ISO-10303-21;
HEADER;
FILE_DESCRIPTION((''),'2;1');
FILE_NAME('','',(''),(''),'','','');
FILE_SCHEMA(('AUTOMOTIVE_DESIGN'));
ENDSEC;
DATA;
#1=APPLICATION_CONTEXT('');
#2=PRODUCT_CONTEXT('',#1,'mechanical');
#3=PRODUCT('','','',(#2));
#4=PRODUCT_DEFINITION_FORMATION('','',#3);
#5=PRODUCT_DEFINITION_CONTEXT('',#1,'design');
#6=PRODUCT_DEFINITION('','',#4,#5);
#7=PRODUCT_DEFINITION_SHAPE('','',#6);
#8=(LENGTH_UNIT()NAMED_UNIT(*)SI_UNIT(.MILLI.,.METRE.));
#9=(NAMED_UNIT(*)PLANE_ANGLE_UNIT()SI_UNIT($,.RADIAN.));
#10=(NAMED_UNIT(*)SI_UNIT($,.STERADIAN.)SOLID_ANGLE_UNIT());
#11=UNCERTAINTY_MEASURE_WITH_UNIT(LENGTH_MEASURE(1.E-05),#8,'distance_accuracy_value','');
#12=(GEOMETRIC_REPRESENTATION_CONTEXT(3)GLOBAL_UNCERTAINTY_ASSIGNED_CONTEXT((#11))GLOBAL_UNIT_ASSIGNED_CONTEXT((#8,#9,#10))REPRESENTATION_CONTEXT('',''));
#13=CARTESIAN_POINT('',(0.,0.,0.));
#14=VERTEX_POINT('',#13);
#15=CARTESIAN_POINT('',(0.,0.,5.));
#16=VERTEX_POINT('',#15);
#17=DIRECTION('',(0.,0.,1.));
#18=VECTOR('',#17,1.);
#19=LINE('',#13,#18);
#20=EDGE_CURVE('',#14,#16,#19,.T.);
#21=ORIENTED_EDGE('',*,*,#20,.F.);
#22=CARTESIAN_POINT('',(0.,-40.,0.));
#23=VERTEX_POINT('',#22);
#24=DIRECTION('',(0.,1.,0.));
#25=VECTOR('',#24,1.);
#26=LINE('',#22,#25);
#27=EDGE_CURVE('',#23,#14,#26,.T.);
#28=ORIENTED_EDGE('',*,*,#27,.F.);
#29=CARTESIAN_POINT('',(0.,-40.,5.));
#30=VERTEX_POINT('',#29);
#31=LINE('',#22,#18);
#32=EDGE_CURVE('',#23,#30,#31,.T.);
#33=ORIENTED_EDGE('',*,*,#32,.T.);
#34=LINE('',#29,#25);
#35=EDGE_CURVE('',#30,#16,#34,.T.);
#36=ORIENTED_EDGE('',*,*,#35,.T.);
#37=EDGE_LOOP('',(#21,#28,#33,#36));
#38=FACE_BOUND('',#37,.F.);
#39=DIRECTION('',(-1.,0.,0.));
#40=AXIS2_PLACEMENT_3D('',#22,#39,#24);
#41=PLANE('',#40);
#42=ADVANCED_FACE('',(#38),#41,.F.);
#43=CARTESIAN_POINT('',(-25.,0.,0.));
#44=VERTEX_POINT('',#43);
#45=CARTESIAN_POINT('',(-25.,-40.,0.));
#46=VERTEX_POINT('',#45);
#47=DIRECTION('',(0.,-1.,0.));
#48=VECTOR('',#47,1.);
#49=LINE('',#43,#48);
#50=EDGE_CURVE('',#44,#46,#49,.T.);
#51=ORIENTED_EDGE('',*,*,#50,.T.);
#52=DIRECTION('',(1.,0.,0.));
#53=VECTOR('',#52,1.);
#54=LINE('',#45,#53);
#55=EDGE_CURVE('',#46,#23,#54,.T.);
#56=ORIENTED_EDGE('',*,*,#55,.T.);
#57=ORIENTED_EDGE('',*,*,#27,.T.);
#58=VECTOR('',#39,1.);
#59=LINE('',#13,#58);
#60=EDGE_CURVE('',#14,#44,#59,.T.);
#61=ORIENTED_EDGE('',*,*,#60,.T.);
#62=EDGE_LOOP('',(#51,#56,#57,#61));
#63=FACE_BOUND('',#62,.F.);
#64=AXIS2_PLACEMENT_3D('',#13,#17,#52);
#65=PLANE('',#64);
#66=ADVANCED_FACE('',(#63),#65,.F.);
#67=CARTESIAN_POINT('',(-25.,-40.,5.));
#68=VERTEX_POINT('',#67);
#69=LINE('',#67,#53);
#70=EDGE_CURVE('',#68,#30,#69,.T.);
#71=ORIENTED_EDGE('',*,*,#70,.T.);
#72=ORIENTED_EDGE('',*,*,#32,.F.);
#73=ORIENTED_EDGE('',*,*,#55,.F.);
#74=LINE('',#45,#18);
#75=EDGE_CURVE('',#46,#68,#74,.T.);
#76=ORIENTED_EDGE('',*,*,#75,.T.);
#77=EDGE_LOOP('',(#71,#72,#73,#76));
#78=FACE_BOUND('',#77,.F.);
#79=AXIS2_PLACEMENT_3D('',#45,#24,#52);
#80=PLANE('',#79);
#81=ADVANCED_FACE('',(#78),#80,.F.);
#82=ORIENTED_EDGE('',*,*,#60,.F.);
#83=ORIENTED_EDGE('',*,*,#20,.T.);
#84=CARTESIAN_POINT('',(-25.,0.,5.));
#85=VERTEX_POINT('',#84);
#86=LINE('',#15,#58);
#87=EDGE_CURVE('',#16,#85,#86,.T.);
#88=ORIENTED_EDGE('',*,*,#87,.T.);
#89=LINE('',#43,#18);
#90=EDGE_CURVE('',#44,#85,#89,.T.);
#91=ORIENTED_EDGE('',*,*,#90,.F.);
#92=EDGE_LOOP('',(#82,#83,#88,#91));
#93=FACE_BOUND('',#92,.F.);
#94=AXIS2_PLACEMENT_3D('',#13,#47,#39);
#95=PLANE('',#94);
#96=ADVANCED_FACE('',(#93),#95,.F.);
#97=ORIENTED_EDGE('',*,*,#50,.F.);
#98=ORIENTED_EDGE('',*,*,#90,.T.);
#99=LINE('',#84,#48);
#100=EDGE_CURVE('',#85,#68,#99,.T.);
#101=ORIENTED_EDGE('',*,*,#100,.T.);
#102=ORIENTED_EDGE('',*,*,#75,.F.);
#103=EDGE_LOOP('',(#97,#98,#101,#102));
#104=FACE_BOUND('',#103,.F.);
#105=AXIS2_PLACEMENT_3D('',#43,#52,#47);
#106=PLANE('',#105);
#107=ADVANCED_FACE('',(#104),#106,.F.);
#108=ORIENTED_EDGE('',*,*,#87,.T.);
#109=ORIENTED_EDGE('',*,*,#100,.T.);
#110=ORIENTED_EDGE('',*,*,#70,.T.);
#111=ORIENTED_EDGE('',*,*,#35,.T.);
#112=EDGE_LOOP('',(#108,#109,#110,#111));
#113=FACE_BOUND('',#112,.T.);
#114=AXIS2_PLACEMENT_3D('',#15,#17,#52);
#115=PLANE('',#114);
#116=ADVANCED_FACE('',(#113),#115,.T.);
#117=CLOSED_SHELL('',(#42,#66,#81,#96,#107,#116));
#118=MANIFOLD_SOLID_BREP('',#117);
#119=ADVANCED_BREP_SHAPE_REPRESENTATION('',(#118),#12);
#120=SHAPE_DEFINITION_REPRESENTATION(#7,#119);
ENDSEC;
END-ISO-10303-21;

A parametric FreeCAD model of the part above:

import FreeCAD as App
import Part
import Sketcher

V = App.Vector
Q = App.Units.Quantity

doc = App.newDocument("Part")
body = doc.addObject("PartDesign::Body", "Body")

sketch1 = body.newObject("Sketcher::SketchObject", "Sketch")
sketch1.AttachmentSupport = (doc.getObject("XY_Plane"), [""])
sketch1.MapMode = "FlatFace"
sketch1.addGeometry([
    Part.LineSegment(V(0, -40, 0), V(0, 0, 0)),
    Part.LineSegment(V(0, 0, 0), V(-25, 0, 0)),
    Part.LineSegment(V(-25, 0, 0), V(-25, -40, 0)),
    Part.LineSegment(V(-25, -40, 0), V(0, -40, 0)),
], False)
sketch1.addConstraint([
    Sketcher.Constraint("Coincident", 0, 2, 1, 1),
    Sketcher.Constraint("Coincident", 1, 2, 2, 1),
    Sketcher.Constraint("Coincident", 2, 2, 3, 1),
    Sketcher.Constraint("Coincident", 3, 2, 0, 1),
    Sketcher.Constraint("Vertical", 0),
    Sketcher.Constraint("Horizontal", 1),
    Sketcher.Constraint("Vertical", 2),
    Sketcher.Constraint("Horizontal", 3),
    Sketcher.Constraint("Coincident", 0, 2, -1, 1),
    Sketcher.Constraint("DistanceX", 1, 2, 1, 1, Q("25 mm")),
    Sketcher.Constraint("DistanceY", 0, 1, 0, 2, Q("40 mm")),
])
pad1 = body.newObject("PartDesign::Pad", "Pad")
pad1.Profile = sketch1
pad1.Length = 5

doc.recompute()
